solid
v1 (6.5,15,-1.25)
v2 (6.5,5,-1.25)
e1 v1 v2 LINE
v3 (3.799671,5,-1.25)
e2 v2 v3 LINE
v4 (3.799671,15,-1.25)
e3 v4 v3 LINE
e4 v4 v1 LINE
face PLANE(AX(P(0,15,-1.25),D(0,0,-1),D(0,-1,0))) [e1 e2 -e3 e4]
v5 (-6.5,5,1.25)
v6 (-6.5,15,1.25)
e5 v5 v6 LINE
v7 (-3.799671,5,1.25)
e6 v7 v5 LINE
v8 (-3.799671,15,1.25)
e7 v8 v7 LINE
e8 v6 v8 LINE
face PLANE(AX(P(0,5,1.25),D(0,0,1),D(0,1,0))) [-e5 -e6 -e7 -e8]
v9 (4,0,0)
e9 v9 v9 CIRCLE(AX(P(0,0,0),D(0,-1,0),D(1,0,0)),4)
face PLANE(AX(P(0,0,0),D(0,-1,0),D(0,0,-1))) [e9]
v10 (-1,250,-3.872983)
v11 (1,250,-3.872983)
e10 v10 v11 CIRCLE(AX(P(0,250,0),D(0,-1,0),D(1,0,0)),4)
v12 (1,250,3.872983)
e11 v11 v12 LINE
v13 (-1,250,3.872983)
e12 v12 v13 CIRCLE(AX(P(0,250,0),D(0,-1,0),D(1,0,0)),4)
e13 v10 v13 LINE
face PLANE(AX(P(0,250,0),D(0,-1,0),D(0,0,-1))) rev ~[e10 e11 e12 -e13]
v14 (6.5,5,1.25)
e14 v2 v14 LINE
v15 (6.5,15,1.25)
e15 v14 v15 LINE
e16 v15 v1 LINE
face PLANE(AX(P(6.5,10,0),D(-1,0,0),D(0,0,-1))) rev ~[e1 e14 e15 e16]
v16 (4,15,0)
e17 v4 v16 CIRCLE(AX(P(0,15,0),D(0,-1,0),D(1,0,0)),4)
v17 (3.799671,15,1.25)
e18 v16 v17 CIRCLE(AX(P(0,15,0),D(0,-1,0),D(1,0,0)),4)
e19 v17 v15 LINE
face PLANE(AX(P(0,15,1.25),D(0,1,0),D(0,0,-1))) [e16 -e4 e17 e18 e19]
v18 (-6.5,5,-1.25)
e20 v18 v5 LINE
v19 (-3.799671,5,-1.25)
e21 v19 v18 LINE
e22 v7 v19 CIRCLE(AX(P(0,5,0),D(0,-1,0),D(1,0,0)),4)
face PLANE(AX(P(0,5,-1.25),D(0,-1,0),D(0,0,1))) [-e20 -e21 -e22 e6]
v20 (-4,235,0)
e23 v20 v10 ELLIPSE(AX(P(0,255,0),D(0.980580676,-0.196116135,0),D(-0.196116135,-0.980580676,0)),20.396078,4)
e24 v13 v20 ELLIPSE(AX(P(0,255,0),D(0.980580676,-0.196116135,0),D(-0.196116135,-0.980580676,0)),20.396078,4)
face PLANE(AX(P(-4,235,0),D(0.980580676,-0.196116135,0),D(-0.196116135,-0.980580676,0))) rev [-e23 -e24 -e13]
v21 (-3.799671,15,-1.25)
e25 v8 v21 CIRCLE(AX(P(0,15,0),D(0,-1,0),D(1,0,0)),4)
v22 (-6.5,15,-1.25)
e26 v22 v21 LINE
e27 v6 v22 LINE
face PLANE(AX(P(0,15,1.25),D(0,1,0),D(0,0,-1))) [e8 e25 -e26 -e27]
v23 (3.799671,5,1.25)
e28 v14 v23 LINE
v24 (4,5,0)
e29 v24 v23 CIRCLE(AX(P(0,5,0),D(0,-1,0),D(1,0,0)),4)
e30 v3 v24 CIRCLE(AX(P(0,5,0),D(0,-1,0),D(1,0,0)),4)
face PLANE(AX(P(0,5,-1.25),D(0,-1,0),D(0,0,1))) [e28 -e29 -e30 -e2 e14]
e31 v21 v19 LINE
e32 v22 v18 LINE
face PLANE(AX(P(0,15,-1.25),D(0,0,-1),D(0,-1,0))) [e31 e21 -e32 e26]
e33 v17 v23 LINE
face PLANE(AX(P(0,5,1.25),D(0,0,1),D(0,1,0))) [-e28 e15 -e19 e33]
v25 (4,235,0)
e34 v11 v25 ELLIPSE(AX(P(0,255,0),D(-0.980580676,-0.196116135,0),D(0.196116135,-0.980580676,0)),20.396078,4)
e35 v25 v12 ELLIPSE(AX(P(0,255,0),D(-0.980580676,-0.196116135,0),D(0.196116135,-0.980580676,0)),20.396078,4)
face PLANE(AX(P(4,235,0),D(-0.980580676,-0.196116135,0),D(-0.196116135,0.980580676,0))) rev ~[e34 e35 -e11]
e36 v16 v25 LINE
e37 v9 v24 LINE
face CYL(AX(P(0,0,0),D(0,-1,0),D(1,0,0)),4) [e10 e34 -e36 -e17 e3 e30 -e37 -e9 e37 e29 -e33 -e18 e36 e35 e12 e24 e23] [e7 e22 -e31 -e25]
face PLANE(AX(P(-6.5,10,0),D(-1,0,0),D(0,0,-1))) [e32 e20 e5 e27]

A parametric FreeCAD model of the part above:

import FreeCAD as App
import Part
import Sketcher
Q = App.Units.Quantity

doc = App.newDocument("Part")
body = doc.addObject("PartDesign::Body", "Body")

# Sketch on XZ plane
sketch1 = doc.addObject("Sketcher::SketchObject", "Sketch")
body.addObject(sketch1)
sketch1.AttachmentSupport = (doc.XZ_Plane, [""])
sketch1.MapMode = "FlatFace"
sketch1.addGeometry(Part.Circle(App.Vector(0, 0, 0), App.Vector(0, 0, 1), 4), False)
sketch1.addConstraint([
    Sketcher.Constraint("Coincident", 0, 3, -1, 1),
    Sketcher.Constraint("Diameter", 0, Q("8 mm")),
])
pad1 = doc.addObject("PartDesign::Pad", "Pad")
body.addObject(pad1)
pad1.Profile = sketch1
pad1.Length = 250
pad1.Reversed = True

# Sketch on XY plane
sketch2 = doc.addObject("Sketcher::SketchObject", "Sketch001")
body.addObject(sketch2)
sketch2.AttachmentSupport = (doc.XY_Plane, [""])
sketch2.MapMode = "FlatFace"
sketch2.addGeometry([
    Part.LineSegment(App.Vector(4, 235, 0), App.Vector(4, 250, 0)),
    Part.LineSegment(App.Vector(4, 250, 0), App.Vector(1, 250, 0)),
    Part.LineSegment(App.Vector(1, 250, 0), App.Vector(4, 235, 0)),
], False)
sketch2.addConstraint([
    Sketcher.Constraint("Coincident", 0, 2, 1, 1),
    Sketcher.Constraint("Coincident", 1, 2, 2, 1),
    Sketcher.Constraint("Coincident", 2, 2, 0, 1),
    Sketcher.Constraint("Vertical", 0),
    Sketcher.Constraint("Horizontal", 1),
    Sketcher.Constraint("DistanceX", -1, 1, 0, 2, Q("4 mm")),
    Sketcher.Constraint("DistanceX", -1, 1, 1, 2, Q("1 mm")),
    Sketcher.Constraint("DistanceY", 0, 1, 0, 2, Q("15 mm")),
    Sketcher.Constraint("DistanceY", -1, 1, 0, 2, Q("250 mm")),
])
pocket1 = doc.addObject("PartDesign::Pocket", "Pocket")
body.addObject(pocket1)
pocket1.Profile = sketch2
pocket1.Length = 43.1543
pocket1.Midplane = True
doc.recompute()

mirrored = doc.addObject("PartDesign::Mirrored", "Mirrored")
body.addObject(mirrored)
mirrored.Originals = [pocket1]
mirrored.MirrorPlane = (doc.YZ_Plane, [""])
body.Tip = mirrored

# Sketch on YZ plane
sketch3 = doc.addObject("Sketcher::SketchObject", "Sketch002")
body.addObject(sketch3)
sketch3.AttachmentSupport = (doc.YZ_Plane, [""])
sketch3.MapMode = "FlatFace"
sketch3.addGeometry([
    Part.LineSegment(App.Vector(5, -1.2, 0), App.Vector(15, -1.2, 0)),
    Part.LineSegment(App.Vector(15, -1.2, 0), App.Vector(15, 1.2, 0)),
    Part.LineSegment(App.Vector(15, 1.2, 0), App.Vector(5, 1.2, 0)),
    Part.LineSegment(App.Vector(5, 1.2, 0), App.Vector(5, -1.2, 0)),
], False)
sketch3.addConstraint([
    Sketcher.Constraint("Coincident", 0, 2, 1, 1),
    Sketcher.Constraint("Coincident", 1, 2, 2, 1),
    Sketcher.Constraint("Coincident", 2, 2, 3, 1),
    Sketcher.Constraint("Coincident", 3, 2, 0, 1),
    Sketcher.Constraint("Horizontal", 0),
    Sketcher.Constraint("Vertical", 1),
    Sketcher.Constraint("Horizontal", 2),
    Sketcher.Constraint("Vertical", 3),
    Sketcher.Constraint("DistanceX", 0, 1, 0, 2, Q("10 mm")),
    Sketcher.Constraint("DistanceY", 1, 1, 1, 2, Q("2.5 mm")),
    Sketcher.Constraint("DistanceX", -1, 1, 0, 2, Q("15 mm")),
    Sketcher.Constraint("DistanceY", 0, 2, -1, 1, Q("1.25 mm")),
])
pad2 = doc.addObject("PartDesign::Pad", "Pad001")
body.addObject(pad2)
pad2.Profile = sketch3
pad2.Length = 13
pad2.Midplane = True

doc.recompute()
